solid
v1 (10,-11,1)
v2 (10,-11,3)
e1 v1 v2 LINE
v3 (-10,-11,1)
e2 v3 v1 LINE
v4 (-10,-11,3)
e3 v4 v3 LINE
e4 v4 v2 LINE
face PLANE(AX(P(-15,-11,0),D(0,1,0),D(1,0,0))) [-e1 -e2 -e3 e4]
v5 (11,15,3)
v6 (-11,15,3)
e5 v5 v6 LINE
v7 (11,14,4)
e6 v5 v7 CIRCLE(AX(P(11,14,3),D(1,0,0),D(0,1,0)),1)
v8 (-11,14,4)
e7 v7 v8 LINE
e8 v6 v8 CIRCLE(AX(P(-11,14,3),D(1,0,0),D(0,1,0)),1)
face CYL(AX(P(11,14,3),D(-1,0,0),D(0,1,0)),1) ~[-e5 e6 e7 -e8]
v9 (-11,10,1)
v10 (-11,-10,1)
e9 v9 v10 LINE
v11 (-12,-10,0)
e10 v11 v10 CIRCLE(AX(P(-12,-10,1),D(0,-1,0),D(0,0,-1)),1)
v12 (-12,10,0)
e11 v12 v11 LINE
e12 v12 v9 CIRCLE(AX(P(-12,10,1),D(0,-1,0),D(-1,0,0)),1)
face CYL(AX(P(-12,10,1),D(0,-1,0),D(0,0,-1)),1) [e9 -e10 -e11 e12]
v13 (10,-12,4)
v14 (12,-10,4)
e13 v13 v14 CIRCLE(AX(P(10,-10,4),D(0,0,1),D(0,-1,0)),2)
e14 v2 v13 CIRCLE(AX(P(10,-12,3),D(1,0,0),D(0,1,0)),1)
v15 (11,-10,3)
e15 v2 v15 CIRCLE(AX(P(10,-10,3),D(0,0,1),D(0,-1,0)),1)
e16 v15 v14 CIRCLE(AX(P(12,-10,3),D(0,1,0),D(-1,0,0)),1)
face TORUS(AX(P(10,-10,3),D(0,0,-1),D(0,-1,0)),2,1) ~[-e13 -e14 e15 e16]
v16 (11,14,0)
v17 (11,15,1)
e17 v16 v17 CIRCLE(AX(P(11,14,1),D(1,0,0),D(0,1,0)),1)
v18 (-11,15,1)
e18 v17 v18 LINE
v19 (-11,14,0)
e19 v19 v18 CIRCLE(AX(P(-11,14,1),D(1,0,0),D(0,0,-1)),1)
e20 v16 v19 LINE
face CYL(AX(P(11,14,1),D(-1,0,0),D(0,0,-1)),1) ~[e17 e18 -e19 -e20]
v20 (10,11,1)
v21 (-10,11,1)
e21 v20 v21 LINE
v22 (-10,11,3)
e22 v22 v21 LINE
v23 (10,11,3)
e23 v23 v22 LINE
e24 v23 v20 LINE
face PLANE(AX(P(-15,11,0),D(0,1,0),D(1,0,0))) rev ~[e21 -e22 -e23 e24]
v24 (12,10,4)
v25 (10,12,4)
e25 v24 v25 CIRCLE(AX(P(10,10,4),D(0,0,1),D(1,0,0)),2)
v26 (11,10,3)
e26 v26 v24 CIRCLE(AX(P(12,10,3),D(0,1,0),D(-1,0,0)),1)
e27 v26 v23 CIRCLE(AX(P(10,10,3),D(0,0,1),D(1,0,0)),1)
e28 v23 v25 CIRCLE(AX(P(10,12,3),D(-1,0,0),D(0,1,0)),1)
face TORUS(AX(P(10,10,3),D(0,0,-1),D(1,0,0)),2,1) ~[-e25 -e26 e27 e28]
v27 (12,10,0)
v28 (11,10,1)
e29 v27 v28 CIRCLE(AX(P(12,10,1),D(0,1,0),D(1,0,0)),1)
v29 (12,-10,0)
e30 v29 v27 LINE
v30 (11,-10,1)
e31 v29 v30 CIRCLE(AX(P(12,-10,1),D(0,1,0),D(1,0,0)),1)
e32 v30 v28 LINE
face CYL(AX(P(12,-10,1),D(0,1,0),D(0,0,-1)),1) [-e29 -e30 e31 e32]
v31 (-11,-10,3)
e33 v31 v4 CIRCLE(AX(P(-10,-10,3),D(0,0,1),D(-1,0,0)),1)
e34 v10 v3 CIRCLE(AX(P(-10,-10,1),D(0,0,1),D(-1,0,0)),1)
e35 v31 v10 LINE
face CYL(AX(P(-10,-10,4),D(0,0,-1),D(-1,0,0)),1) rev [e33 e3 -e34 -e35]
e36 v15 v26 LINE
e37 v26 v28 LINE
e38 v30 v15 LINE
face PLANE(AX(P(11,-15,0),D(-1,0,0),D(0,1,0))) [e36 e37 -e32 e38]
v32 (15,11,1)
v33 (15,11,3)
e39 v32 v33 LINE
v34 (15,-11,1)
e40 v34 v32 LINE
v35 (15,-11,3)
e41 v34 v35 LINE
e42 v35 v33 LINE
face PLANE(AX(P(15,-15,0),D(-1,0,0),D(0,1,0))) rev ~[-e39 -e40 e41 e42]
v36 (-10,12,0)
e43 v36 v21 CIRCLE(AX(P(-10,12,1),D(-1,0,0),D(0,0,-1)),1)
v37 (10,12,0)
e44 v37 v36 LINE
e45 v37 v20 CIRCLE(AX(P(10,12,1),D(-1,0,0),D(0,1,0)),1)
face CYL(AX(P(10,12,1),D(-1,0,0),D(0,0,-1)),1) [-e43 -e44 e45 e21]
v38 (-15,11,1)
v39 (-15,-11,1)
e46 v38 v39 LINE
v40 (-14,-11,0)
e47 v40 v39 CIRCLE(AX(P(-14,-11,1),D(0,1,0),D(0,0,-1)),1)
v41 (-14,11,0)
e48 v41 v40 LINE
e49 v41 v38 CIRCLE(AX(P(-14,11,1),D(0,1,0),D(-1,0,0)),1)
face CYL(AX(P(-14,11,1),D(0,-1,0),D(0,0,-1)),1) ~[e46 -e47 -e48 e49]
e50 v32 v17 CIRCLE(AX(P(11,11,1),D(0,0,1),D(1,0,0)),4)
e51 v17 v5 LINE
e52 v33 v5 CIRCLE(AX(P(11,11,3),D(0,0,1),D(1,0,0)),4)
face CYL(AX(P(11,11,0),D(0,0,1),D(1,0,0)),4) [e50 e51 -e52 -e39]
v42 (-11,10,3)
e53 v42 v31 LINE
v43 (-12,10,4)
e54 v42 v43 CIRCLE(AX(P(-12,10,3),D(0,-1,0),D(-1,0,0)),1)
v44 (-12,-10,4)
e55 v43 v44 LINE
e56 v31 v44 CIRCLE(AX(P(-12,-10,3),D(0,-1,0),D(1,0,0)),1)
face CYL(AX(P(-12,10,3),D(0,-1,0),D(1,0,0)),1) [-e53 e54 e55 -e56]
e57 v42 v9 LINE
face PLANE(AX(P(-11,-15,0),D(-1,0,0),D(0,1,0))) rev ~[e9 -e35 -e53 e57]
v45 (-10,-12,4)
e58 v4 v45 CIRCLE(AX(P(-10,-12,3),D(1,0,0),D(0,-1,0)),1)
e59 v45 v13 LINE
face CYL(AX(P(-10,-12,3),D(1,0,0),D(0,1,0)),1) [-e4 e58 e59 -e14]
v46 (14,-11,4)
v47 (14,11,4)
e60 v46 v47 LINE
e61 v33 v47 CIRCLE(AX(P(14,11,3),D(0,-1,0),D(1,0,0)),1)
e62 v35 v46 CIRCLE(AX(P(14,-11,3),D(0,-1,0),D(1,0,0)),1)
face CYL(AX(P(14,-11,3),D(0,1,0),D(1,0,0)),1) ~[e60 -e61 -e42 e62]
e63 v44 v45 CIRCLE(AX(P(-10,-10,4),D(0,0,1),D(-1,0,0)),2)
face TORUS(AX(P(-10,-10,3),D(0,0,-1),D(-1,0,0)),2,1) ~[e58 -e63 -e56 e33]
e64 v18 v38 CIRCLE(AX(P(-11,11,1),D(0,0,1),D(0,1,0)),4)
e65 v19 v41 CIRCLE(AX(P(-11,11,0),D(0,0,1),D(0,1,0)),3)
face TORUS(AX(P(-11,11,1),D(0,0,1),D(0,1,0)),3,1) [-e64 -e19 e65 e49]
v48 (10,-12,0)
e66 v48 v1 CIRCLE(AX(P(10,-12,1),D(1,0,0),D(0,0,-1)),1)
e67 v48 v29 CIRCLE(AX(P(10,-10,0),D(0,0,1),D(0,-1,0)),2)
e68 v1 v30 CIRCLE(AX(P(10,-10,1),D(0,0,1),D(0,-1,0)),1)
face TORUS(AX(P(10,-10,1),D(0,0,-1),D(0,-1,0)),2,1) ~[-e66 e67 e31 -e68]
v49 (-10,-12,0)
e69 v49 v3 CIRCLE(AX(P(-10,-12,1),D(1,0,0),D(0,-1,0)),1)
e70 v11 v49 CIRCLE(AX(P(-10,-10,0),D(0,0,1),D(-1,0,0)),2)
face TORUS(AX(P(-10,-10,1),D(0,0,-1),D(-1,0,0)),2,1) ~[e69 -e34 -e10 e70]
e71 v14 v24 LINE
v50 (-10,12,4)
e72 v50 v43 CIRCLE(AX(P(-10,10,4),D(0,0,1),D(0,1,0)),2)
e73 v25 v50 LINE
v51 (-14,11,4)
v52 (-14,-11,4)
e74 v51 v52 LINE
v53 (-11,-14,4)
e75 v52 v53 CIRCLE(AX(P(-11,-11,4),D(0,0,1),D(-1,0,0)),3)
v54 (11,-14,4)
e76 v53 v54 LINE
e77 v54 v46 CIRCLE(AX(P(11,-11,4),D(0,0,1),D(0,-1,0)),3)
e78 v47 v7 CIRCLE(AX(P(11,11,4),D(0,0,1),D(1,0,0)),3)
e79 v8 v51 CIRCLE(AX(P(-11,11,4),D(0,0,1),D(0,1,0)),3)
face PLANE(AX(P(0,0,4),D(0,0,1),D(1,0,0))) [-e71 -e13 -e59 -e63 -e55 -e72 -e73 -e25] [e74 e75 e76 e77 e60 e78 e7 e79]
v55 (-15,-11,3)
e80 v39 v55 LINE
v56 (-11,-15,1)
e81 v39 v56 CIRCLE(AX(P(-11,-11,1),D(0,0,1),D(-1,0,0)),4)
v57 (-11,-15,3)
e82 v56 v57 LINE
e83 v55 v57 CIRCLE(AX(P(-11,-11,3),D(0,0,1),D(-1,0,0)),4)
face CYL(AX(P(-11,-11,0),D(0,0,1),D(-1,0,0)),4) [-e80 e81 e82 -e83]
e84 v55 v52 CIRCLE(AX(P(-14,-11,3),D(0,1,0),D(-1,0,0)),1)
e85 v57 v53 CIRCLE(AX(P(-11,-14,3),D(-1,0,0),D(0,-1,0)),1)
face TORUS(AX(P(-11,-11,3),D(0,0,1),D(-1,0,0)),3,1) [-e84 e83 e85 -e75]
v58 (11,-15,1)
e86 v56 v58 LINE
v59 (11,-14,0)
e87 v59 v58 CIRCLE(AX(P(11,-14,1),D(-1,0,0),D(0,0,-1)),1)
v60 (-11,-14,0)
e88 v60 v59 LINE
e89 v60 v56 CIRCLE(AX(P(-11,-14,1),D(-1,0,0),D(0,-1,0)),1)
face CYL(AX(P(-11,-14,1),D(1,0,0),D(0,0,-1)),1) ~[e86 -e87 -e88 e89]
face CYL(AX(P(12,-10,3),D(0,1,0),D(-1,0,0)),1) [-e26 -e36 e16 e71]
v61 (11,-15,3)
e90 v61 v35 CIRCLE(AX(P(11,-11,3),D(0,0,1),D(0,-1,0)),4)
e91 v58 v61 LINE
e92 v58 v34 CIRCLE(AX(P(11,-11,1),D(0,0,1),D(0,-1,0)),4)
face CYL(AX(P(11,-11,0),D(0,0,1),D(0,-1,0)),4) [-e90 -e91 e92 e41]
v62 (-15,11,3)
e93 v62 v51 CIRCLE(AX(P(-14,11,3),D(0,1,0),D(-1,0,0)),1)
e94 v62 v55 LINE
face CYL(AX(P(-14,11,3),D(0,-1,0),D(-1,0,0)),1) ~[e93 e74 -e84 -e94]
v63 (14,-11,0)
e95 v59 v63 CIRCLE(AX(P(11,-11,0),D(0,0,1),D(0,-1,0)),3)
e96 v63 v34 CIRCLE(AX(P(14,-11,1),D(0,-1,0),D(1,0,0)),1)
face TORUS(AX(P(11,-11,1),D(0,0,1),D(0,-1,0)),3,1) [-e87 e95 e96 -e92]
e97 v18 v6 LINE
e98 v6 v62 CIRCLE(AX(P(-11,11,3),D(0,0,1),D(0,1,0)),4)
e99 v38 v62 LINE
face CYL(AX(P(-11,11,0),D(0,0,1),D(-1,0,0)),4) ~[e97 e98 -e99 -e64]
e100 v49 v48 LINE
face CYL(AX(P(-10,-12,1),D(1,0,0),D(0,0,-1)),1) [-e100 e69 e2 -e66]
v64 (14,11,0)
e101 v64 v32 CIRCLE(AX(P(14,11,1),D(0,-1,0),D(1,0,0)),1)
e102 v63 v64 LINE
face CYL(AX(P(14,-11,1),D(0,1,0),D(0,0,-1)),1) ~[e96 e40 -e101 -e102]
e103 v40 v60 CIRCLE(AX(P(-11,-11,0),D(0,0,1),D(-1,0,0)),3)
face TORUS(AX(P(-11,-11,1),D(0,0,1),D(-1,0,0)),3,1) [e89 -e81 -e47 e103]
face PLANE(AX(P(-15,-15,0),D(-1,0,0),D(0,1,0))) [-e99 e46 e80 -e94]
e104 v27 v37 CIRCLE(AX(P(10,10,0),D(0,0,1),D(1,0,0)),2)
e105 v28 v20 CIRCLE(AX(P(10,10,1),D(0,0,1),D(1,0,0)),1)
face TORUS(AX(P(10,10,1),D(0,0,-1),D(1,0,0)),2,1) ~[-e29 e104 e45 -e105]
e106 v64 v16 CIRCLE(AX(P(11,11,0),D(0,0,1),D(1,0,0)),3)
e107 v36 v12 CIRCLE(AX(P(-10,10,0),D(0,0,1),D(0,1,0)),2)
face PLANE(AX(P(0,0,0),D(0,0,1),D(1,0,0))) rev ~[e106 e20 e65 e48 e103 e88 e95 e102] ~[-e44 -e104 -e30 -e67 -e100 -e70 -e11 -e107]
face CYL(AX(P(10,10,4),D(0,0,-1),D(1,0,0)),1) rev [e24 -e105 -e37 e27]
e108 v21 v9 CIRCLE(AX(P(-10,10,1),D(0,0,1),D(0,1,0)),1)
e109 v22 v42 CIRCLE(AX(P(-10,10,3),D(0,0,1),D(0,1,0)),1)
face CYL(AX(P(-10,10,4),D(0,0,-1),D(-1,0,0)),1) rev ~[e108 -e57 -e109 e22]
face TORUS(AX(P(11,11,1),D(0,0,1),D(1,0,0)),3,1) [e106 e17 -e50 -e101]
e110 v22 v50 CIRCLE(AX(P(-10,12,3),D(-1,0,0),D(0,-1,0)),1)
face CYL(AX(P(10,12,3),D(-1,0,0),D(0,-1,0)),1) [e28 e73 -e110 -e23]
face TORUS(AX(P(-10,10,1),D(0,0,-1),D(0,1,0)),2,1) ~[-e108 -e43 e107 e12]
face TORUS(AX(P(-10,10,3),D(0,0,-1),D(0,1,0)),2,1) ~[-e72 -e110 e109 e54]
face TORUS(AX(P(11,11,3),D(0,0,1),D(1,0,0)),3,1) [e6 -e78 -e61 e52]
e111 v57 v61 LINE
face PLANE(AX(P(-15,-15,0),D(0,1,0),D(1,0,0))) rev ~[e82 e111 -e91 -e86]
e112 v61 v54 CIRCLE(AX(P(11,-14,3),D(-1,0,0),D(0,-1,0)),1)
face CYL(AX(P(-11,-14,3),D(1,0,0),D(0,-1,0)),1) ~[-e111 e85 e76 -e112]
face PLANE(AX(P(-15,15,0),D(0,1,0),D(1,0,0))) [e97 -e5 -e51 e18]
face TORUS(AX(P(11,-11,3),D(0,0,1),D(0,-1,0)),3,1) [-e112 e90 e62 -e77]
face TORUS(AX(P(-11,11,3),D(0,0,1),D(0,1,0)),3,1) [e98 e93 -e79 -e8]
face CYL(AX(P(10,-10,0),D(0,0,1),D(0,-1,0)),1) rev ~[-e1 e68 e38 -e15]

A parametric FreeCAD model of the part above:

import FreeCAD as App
import Part
import Sketcher

V = App.Vector


def edges_at(feature, points):
    """Names of the edges that pass closest to the given points."""
    edges = feature.Shape.Edges
    near = lambda p: min(range(len(edges)), key=lambda i: edges[i].distToShape(Part.Vertex(*p))[0])
    return sorted({f"Edge{near(p) + 1}" for p in points})


def faces_at(feature, points):
    """Names of the faces that lie closest to the given points."""
    faces = feature.Shape.Faces
    near = lambda p: min(range(len(faces)), key=lambda i: faces[i].distToShape(Part.Vertex(*p))[0])
    return sorted({f"Face{near(p) + 1}" for p in points})


def add_polygon(sketch, points):
    """Adds a closed chain of lines whose ends are joined by coincident constraints."""
    first, n = sketch.GeometryCount, len(points)
    for a, b in zip(points, points[1:] + points[:1]):
        sketch.addGeometry(Part.LineSegment(App.Vector(*a, 0), App.Vector(*b, 0)), False)
    for i in range(n):
        sketch.addConstraint(Sketcher.Constraint("Coincident", first + i, 2, first + (i + 1) % n, 1))

doc = App.newDocument("Part")
body = doc.addObject("PartDesign::Body", "Body")

# Sketch on XY plane
sketch1 = body.newObject("Sketcher::SketchObject", "Sketch")
sketch1.AttachmentSupport = (doc.getObject("XY_Plane"), [""])
sketch1.MapMode = "FlatFace"
add_polygon(sketch1, [(-15, 15), (-15, -15), (15, -15), (15, 15)])  # lines 0-3
sketch1.addConstraint(Sketcher.Constraint("Vertical", 0))
sketch1.addConstraint(Sketcher.Constraint("Horizontal", 1))
sketch1.addConstraint(Sketcher.Constraint("Vertical", 2))
sketch1.addConstraint(Sketcher.Constraint("Horizontal", 3))
sketch1.addConstraint(Sketcher.Constraint("Symmetric", 0, 2, 2, 2, -1, 1))
sketch1.addConstraint(Sketcher.Constraint("Equal", 3, 0))
sketch1.addConstraint(Sketcher.Constraint("DistanceX", 1, 1, 1, 2, 30.0))
pad1 = body.newObject("PartDesign::Pad", "Pad")
pad1.Profile = sketch1
pad1.Length = 4
doc.recompute()

thickness = body.newObject("PartDesign::Thickness", "Thickness")
thickness.Base = (pad1, faces_at(pad1, [(0, 0, 4), (0, 0, 0)]))
thickness.Value = 4
thickness.Reversed = True
thickness.Join = "Arc"
doc.recompute()

fillet = body.newObject("PartDesign::Fillet", "Fillet")
fillet.Base = (thickness, edges_at(thickness, [
    (-11, 11, 2),
    (11, 11, 2),
    (-11, -11, 2),
    (11, -11, 2),
]))
fillet.Radius = 1
doc.recompute()

fillet2 = body.newObject("PartDesign::Fillet", "Fillet001")
fillet2.Base = (fillet, edges_at(fillet, [
    (-15, 15, 2),
    (15, 15, 2),
    (-15, -15, 2),
    (15, -15, 2),
]))
fillet2.Radius = 4
doc.recompute()

fillet3 = body.newObject("PartDesign::Fillet", "Fillet002")
fillet3.Base = (fillet2, edges_at(fillet2, [
    (11, 0, 4),
    (15, 0, 4),
    (13.828, 13.828, 0),
    (10.707, 10.707, 0),
]))
fillet3.Radius = 1

doc.recompute()
